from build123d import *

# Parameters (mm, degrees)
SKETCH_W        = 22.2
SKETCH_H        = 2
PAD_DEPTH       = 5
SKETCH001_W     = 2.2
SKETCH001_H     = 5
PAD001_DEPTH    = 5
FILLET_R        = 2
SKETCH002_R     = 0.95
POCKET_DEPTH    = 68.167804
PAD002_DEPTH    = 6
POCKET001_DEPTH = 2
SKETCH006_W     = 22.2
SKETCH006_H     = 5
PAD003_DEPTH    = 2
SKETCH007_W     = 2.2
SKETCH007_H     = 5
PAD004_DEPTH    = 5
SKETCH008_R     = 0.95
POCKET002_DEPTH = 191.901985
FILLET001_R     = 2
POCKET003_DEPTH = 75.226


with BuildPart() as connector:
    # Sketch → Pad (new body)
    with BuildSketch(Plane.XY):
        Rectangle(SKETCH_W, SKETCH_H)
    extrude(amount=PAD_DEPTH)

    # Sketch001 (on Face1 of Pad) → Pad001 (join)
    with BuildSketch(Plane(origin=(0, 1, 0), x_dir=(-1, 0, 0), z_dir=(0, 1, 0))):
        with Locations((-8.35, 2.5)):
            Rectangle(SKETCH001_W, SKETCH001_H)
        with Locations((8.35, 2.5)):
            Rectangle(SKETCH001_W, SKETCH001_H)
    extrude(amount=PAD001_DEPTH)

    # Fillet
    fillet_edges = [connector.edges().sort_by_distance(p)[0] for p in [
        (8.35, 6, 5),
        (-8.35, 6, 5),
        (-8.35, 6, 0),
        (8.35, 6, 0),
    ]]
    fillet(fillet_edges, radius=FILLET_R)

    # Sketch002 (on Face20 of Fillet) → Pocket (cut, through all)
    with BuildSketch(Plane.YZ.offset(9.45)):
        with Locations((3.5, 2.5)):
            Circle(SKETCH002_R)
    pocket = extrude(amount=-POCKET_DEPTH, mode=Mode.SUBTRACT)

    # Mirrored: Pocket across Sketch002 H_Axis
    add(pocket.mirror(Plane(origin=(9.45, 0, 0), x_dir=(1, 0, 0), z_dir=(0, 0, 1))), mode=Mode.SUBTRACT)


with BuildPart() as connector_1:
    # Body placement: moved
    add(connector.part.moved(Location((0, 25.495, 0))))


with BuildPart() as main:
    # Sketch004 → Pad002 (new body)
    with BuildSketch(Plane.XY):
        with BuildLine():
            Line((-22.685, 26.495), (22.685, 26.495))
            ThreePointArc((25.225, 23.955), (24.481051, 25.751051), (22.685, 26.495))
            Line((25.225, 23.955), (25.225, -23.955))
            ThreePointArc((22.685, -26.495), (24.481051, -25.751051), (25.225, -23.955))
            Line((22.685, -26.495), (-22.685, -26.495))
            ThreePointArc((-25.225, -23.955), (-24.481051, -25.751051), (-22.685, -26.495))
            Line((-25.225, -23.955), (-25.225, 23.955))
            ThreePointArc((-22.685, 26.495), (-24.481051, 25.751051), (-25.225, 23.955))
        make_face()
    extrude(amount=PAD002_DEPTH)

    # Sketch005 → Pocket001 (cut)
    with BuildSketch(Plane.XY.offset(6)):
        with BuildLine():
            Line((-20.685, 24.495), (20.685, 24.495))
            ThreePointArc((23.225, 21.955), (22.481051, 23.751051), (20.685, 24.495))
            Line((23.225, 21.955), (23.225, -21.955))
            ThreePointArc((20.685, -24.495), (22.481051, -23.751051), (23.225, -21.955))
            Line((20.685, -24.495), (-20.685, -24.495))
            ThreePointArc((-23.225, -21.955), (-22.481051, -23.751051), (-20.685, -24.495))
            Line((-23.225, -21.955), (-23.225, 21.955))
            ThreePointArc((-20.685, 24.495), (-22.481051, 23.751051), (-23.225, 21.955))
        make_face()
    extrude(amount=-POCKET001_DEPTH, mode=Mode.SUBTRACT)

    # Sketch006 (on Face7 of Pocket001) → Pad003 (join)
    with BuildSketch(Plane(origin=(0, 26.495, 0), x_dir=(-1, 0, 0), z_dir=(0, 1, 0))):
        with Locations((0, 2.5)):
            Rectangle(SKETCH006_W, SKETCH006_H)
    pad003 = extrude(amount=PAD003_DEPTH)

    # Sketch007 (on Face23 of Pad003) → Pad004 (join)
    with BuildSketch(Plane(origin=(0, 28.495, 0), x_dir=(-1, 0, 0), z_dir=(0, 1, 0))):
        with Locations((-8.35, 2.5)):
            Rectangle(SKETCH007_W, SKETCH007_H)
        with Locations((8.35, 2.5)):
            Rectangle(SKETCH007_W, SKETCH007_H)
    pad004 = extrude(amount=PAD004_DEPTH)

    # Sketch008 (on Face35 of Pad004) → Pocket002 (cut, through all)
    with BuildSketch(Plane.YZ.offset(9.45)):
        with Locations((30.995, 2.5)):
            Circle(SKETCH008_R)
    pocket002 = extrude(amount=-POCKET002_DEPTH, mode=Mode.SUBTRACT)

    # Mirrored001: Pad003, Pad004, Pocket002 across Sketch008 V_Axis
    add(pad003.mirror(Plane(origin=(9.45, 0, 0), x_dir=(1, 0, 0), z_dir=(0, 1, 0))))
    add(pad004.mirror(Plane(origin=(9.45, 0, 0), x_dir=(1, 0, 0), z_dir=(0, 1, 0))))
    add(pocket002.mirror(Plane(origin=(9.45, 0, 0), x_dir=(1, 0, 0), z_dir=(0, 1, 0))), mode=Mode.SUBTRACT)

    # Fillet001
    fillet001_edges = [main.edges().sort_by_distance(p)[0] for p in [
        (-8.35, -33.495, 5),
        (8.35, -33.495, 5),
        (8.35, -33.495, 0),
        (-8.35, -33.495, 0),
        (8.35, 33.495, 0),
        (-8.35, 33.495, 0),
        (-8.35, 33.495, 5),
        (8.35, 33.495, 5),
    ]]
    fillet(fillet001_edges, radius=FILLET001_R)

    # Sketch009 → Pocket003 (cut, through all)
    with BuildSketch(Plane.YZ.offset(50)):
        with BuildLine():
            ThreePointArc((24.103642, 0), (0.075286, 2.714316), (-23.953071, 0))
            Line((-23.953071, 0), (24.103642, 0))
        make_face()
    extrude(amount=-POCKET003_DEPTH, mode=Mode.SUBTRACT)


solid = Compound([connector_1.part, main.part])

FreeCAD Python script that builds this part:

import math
import FreeCAD as App
import Part
import Sketcher
from FreeCAD import Vector


def edges_at(feature, points):
    """Names of the edges that pass closest to the given points."""
    edges = feature.Shape.Edges
    near = lambda p: min(range(len(edges)), key=lambda i: edges[i].distToShape(Part.Vertex(*p))[0])
    return sorted({f"Edge{near(p) + 1}" for p in points})

doc = App.newDocument("Part")
body = doc.addObject("PartDesign::Body", "Body")

sketch1 = doc.addObject("Sketcher::SketchObject", "Sketch")
body.addObject(sketch1)
sketch1.AttachmentSupport = (doc.XY_Plane, [""])
sketch1.MapMode = "FlatFace"
sketch1.addGeometry(Part.LineSegment(Vector(-11.1, 1, 0), Vector(-11.1, -1, 0)), False)
sketch1.addGeometry(Part.LineSegment(Vector(-11.1, -1, 0), Vector(11.1, -1, 0)), False)
sketch1.addGeometry(Part.LineSegment(Vector(11.1, -1, 0), Vector(11.1, 1, 0)), False)
sketch1.addGeometry(Part.LineSegment(Vector(11.1, 1, 0), Vector(-11.1, 1, 0)), False)
sketch1.addConstraint(Sketcher.Constraint("Coincident", 0, 2, 1, 1))
sketch1.addConstraint(Sketcher.Constraint("Coincident", 1, 2, 2, 1))
sketch1.addConstraint(Sketcher.Constraint("Coincident", 2, 2, 3, 1))
sketch1.addConstraint(Sketcher.Constraint("Coincident", 3, 2, 0, 1))
sketch1.addConstraint(Sketcher.Constraint("Vertical", 0))
sketch1.addConstraint(Sketcher.Constraint("Horizontal", 1))
sketch1.addConstraint(Sketcher.Constraint("Vertical", 2))
sketch1.addConstraint(Sketcher.Constraint("Horizontal", 3))
sketch1.addConstraint(Sketcher.Constraint("Symmetric", 0, 2, 2, 2, -1, 1))
sketch1.addConstraint(Sketcher.Constraint("DistanceY", 0, 2, 0, 1, 2.0))
sketch1.addConstraint(Sketcher.Constraint("DistanceX", 1, 1, 1, 2, 22.2))
pad1 = doc.addObject("PartDesign::Pad", "Pad")
body.addObject(pad1)
pad1.Profile = sketch1
pad1.Length = 5

sketch2 = doc.addObject("Sketcher::SketchObject", "Sketch001")
body.addObject(sketch2)
sketch2.AttachmentSupport = (doc.XZ_Plane, [""])
sketch2.MapMode = "FlatFace"
sketch2.AttachmentOffset = App.Placement(Vector(0, 0, -1), App.Rotation())
sketch2.addGeometry(Part.LineSegment(Vector(9.4, 5, 0), Vector(9.4, 0, 0)), False)
sketch2.addGeometry(Part.LineSegment(Vector(9.4, 0, 0), Vector(7.2, 0, 0)), False)
sketch2.addGeometry(Part.LineSegment(Vector(7.2, 0, 0), Vector(7.2, 5, 0)), False)
sketch2.addGeometry(Part.LineSegment(Vector(7.2, 5, 0), Vector(9.4, 5, 0)), False)
sketch2.addGeometry(Part.LineSegment(Vector(-7.2, 5, 0), Vector(-7.2, 0, 0)), False)
sketch2.addGeometry(Part.LineSegment(Vector(-7.2, 0, 0), Vector(-9.4, 0, 0)), False)
sketch2.addGeometry(Part.LineSegment(Vector(-9.4, 0, 0), Vector(-9.4, 5, 0)), False)
sketch2.addGeometry(Part.LineSegment(Vector(-9.4, 5, 0), Vector(-7.2, 5, 0)), False)
sketch2.addConstraint(Sketcher.Constraint("Coincident", 0, 2, 1, 1))
sketch2.addConstraint(Sketcher.Constraint("Coincident", 1, 2, 2, 1))
sketch2.addConstraint(Sketcher.Constraint("Coincident", 2, 2, 3, 1))
sketch2.addConstraint(Sketcher.Constraint("Coincident", 3, 2, 0, 1))
sketch2.addConstraint(Sketcher.Constraint("Coincident", 4, 2, 5, 1))
sketch2.addConstraint(Sketcher.Constraint("Coincident", 5, 2, 6, 1))
sketch2.addConstraint(Sketcher.Constraint("Coincident", 6, 2, 7, 1))
sketch2.addConstraint(Sketcher.Constraint("Coincident", 7, 2, 4, 1))
sketch2.addConstraint(Sketcher.Constraint("Vertical", 0))
sketch2.addConstraint(Sketcher.Constraint("Horizontal", 1))
sketch2.addConstraint(Sketcher.Constraint("Vertical", 2))
sketch2.addConstraint(Sketcher.Constraint("Horizontal", 3))
sketch2.addConstraint(Sketcher.Constraint("Vertical", 4))
sketch2.addConstraint(Sketcher.Constraint("Horizontal", 5))
sketch2.addConstraint(Sketcher.Constraint("Vertical", 6))
sketch2.addConstraint(Sketcher.Constraint("Horizontal", 7))
sketch2.addConstraint(Sketcher.Constraint("Symmetric", 1, 2, 4, 2, -1, 1))
sketch2.addConstraint(Sketcher.Constraint("Symmetric", 0, 2, 5, 2, -2))
sketch2.addConstraint(Sketcher.Constraint("Horizontal", 3, 2, 6, 2))
sketch2.addConstraint(Sketcher.Constraint("DistanceY", 0, 2, 0, 1, 5.0))
sketch2.addConstraint(Sketcher.Constraint("DistanceX", 1, 2, 1, 1, 2.2))
sketch2.addConstraint(Sketcher.Constraint("DistanceX", 4, 2, 1, 2, 14.5))
pad2 = doc.addObject("PartDesign::Pad", "Pad001")
body.addObject(pad2)
pad2.Profile = sketch2
pad2.Length = 5
pad2.Reversed = True
doc.recompute()

fillet = doc.addObject("PartDesign::Fillet", "Fillet")
body.addObject(fillet)
fillet.Base = (pad2, edges_at(pad2, [
    (8.35, 6, 5),
    (-8.35, 6, 5),
    (-8.35, 6, 0),
    (8.35, 6, 0),
]))
fillet.Radius = 2

sketch3 = doc.addObject("Sketcher::SketchObject", "Sketch002")
body.addObject(sketch3)
sketch3.AttachmentSupport = (doc.YZ_Plane, [""])
sketch3.MapMode = "FlatFace"
sketch3.AttachmentOffset = App.Placement(Vector(0, 0, 9.45), App.Rotation())
sketch3.addGeometry(Part.Circle(Vector(3.5, 2.5, 0), Vector(0, 0, 1), 0.9), False)
sketch3.addConstraint(Sketcher.Constraint("Diameter", 0, 1.9))
sketch3.addConstraint(Sketcher.Constraint("DistanceX", -1, 1, 0, 3, 3.5))
sketch3.addConstraint(Sketcher.Constraint("DistanceY", -1, 1, 0, 3, 2.5))
pocket1 = doc.addObject("PartDesign::Pocket", "Pocket")
body.addObject(pocket1)
pocket1.Profile = sketch3
pocket1.Type = "ThroughAll"
doc.recompute()

mirrored = doc.addObject("PartDesign::Mirrored", "Mirrored")
body.addObject(mirrored)
mirrored.Originals = [pocket1]
mirrored.MirrorPlane = (doc.XY_Plane, [""])
body.Tip = mirrored
body2 = doc.addObject("PartDesign::Body", "Body001")
doc.recompute()

body.Placement = App.Placement(Vector(0, 25.495, 0), App.Rotation(Vector(0, 0, 1), 0))
boolean = doc.addObject("PartDesign::Boolean", "Boolean")
body2.addObject(boolean)
boolean.Type = "Fuse"
boolean.addObjects([body])
body3 = doc.addObject("PartDesign::Body", "Body002")

sketch4 = doc.addObject("Sketcher::SketchObject", "Sketch003")
body3.addObject(sketch4)
sketch4.AttachmentSupport = (doc.getObject("XY_Plane002"), [""])
sketch4.MapMode = "FlatFace"
sketch4.addGeometry(Part.LineSegment(Vector(22.7, 26.5, 0), Vector(-22.7, 26.5, 0)), False)
sketch4.addGeometry(Part.ArcOfCircle(Part.Circle(Vector(-22.7, 24, 0), Vector(0, 0, 1), 2.5), math.radians(90), math.radians(180)), False)
sketch4.addGeometry(Part.LineSegment(Vector(-25.2, 24, 0), Vector(-25.2, -24, 0)), False)
sketch4.addGeometry(Part.ArcOfCircle(Part.Circle(Vector(-22.7, -24, 0), Vector(0, 0, 1), 2.5), math.radians(-180), math.radians(-90)), False)
sketch4.addGeometry(Part.LineSegment(Vector(-22.7, -26.5, 0), Vector(22.7, -26.5, 0)), False)
sketch4.addGeometry(Part.ArcOfCircle(Part.Circle(Vector(22.7, -24, 0), Vector(0, 0, 1), 2.5), math.radians(-90), math.radians(0)), False)
sketch4.addGeometry(Part.LineSegment(Vector(25.2, -24, 0), Vector(25.2, 24, 0)), False)
sketch4.addGeometry(Part.ArcOfCircle(Part.Circle(Vector(22.7, 24, 0), Vector(0, 0, 1), 2.5), math.radians(0), math.radians(90)), False)
sketch4.addConstraint(Sketcher.Constraint("Tangent", 0, 2, 1, 1))
sketch4.addConstraint(Sketcher.Constraint("Tangent", 1, 2, 2, 1))
sketch4.addConstraint(Sketcher.Constraint("Tangent", 2, 2, 3, 1))
sketch4.addConstraint(Sketcher.Constraint("Tangent", 3, 2, 4, 1))
sketch4.addConstraint(Sketcher.Constraint("Tangent", 4, 2, 5, 1))
sketch4.addConstraint(Sketcher.Constraint("Tangent", 5, 2, 6, 1))
sketch4.addConstraint(Sketcher.Constraint("Tangent", 6, 2, 7, 1))
sketch4.addConstraint(Sketcher.Constraint("Tangent", 7, 2, 0, 1))
sketch4.addConstraint(Sketcher.Constraint("Horizontal", 0))
sketch4.addConstraint(Sketcher.Constraint("Vertical", 2))
sketch4.addConstraint(Sketcher.Constraint("Horizontal", 4))
sketch4.addConstraint(Sketcher.Constraint("Vertical", 6))
sketch4.addConstraint(Sketcher.Constraint("Equal", 1, 3))
sketch4.addConstraint(Sketcher.Constraint("Equal", 3, 5))
sketch4.addConstraint(Sketcher.Constraint("Equal", 5, 7))
sketch4.addConstraint(Sketcher.Constraint("Symmetric", 1, 3, 5, 3, -1, 1))
sketch4.addConstraint(Sketcher.Constraint("Radius", 1, 2.540001))
sketch4.addConstraint(Sketcher.Constraint("DistanceX", 0, 2, 0, 1, 45.37))
sketch4.addConstraint(Sketcher.Constraint("DistanceY", 2, 2, 2, 1, 47.91))
pad3 = doc.addObject("PartDesign::Pad", "Pad002")
body3.addObject(pad3)
pad3.Profile = sketch4
pad3.Length = 6

sketch5 = doc.addObject("Sketcher::SketchObject", "Sketch004")
body3.addObject(sketch5)
sketch5.AttachmentSupport = (doc.getObject("XY_Plane002"), [""])
sketch5.MapMode = "FlatFace"
sketch5.AttachmentOffset = App.Placement(Vector(0, 0, 6), App.Rotation())
sketch5.addGeometry(Part.LineSegment(Vector(20.7, 24.5, 0), Vector(-20.7, 24.5, 0)), False)
sketch5.addGeometry(Part.ArcOfCircle(Part.Circle(Vector(-20.7, 22, 0), Vector(0, 0, 1), 2.5), math.radians(90), math.radians(180)), False)
sketch5.addGeometry(Part.LineSegment(Vector(-23.2, 22, 0), Vector(-23.2, -22, 0)), False)
sketch5.addGeometry(Part.ArcOfCircle(Part.Circle(Vector(-20.7, -22, 0), Vector(0, 0, 1), 2.5), math.radians(-180), math.radians(-90)), False)
sketch5.addGeometry(Part.LineSegment(Vector(-20.7, -24.5, 0), Vector(20.7, -24.5, 0)), False)
sketch5.addGeometry(Part.ArcOfCircle(Part.Circle(Vector(20.7, -22, 0), Vector(0, 0, 1), 2.5), math.radians(-90), math.radians(0)), False)
sketch5.addGeometry(Part.LineSegment(Vector(23.2, -22, 0), Vector(23.2, 22, 0)), False)
sketch5.addGeometry(Part.ArcOfCircle(Part.Circle(Vector(20.7, 22, 0), Vector(0, 0, 1), 2.5), math.radians(0), math.radians(90)), False)
sketch5.addConstraint(Sketcher.Constraint("Tangent", 0, 2, 1, 1))
sketch5.addConstraint(Sketcher.Constraint("Tangent", 1, 2, 2, 1))
sketch5.addConstraint(Sketcher.Constraint("Tangent", 2, 2, 3, 1))
sketch5.addConstraint(Sketcher.Constraint("Tangent", 3, 2, 4, 1))
sketch5.addConstraint(Sketcher.Constraint("Tangent", 4, 2, 5, 1))
sketch5.addConstraint(Sketcher.Constraint("Tangent", 5, 2, 6, 1))
sketch5.addConstraint(Sketcher.Constraint("Tangent", 6, 2, 7, 1))
sketch5.addConstraint(Sketcher.Constraint("Tangent", 7, 2, 0, 1))
sketch5.addConstraint(Sketcher.Constraint("Horizontal", 0))
sketch5.addConstraint(Sketcher.Constraint("Vertical", 2))
sketch5.addConstraint(Sketcher.Constraint("Horizontal", 4))
sketch5.addConstraint(Sketcher.Constraint("Vertical", 6))
sketch5.addConstraint(Sketcher.Constraint("Equal", 1, 3))
sketch5.addConstraint(Sketcher.Constraint("Equal", 3, 5))
sketch5.addConstraint(Sketcher.Constraint("Equal", 5, 7))
sketch5.addConstraint(Sketcher.Constraint("Symmetric", 1, 3, 5, 3, -1, 1))
sketch5.addConstraint(Sketcher.Constraint("Radius", 1, 2.540001))
sketch5.addConstraint(Sketcher.Constraint("DistanceX", 0, 2, 0, 1, 41.37))
sketch5.addConstraint(Sketcher.Constraint("DistanceY", 2, 2, 2, 1, 43.91))
pocket2 = doc.addObject("PartDesign::Pocket", "Pocket001")
body3.addObject(pocket2)
pocket2.Profile = sketch5
pocket2.Length = 2

sketch6 = doc.addObject("Sketcher::SketchObject", "Sketch005")
body3.addObject(sketch6)
sketch6.AttachmentSupport = (doc.getObject("XZ_Plane002"), [""])
sketch6.MapMode = "FlatFace"
sketch6.AttachmentOffset = App.Placement(Vector(0, 0, -26.495), App.Rotation())
sketch6.addGeometry(Part.LineSegment(Vector(11, 5, 0), Vector(11, 0, 0)), False)
sketch6.addGeometry(Part.LineSegment(Vector(11, 0, 0), Vector(-11, 0, 0)), False)
sketch6.addGeometry(Part.LineSegment(Vector(-11, 0, 0), Vector(-11, 5, 0)), False)
sketch6.addGeometry(Part.LineSegment(Vector(-11, 5, 0), Vector(11, 5, 0)), False)
sketch6.addConstraint(Sketcher.Constraint("Coincident", 0, 2, 1, 1))
sketch6.addConstraint(Sketcher.Constraint("Coincident", 1, 2, 2, 1))
sketch6.addConstraint(Sketcher.Constraint("Coincident", 2, 2, 3, 1))
sketch6.addConstraint(Sketcher.Constraint("Coincident", 3, 2, 0, 1))
sketch6.addConstraint(Sketcher.Constraint("Vertical", 0))
sketch6.addConstraint(Sketcher.Constraint("Horizontal", 1))
sketch6.addConstraint(Sketcher.Constraint("Vertical", 2))
sketch6.addConstraint(Sketcher.Constraint("Horizontal", 3))
sketch6.addConstraint(Sketcher.Constraint("Symmetric", 0, 2, 1, 2, -1, 1))
sketch6.addConstraint(Sketcher.Constraint("DistanceY", 0, 2, 0, 1, 5.0))
sketch6.addConstraint(Sketcher.Constraint("DistanceX", 1, 2, 1, 1, 22.2))
pad4 = doc.addObject("PartDesign::Pad", "Pad003")
body3.addObject(pad4)
pad4.Profile = sketch6
pad4.Length = 2
pad4.Reversed = True

sketch7 = doc.addObject("Sketcher::SketchObject", "Sketch006")
body3.addObject(sketch7)
sketch7.AttachmentSupport = (doc.getObject("XZ_Plane002"), [""])
sketch7.MapMode = "FlatFace"
sketch7.AttachmentOffset = App.Placement(Vector(0, 0, -28.495), App.Rotation())
sketch7.addGeometry(Part.LineSegment(Vector(9.4, 5, 0), Vector(9.4, 0, 0)), False)
sketch7.addGeometry(Part.LineSegment(Vector(9.4, 0, 0), Vector(7.2, 0, 0)), False)
sketch7.addGeometry(Part.LineSegment(Vector(7.2, 0, 0), Vector(7.2, 5, 0)), False)
sketch7.addGeometry(Part.LineSegment(Vector(7.2, 5, 0), Vector(9.4, 5, 0)), False)
sketch7.addGeometry(Part.LineSegment(Vector(-7.2, 5, 0), Vector(-7.2, 0, 0)), False)
sketch7.addGeometry(Part.LineSegment(Vector(-7.2, 0, 0), Vector(-9.4, 0, 0)), False)
sketch7.addGeometry(Part.LineSegment(Vector(-9.4, 0, 0), Vector(-9.4, 5, 0)), False)
sketch7.addGeometry(Part.LineSegment(Vector(-9.4, 5, 0), Vector(-7.2, 5, 0)), False)
sketch7.addConstraint(Sketcher.Constraint("Coincident", 0, 2, 1, 1))
sketch7.addConstraint(Sketcher.Constraint("Coincident", 1, 2, 2, 1))
sketch7.addConstraint(Sketcher.Constraint("Coincident", 2, 2, 3, 1))
sketch7.addConstraint(Sketcher.Constraint("Coincident", 3, 2, 0, 1))
sketch7.addConstraint(Sketcher.Constraint("Coincident", 4, 2, 5, 1))
sketch7.addConstraint(Sketcher.Constraint("Coincident", 5, 2, 6, 1))
sketch7.addConstraint(Sketcher.Constraint("Coincident", 6, 2, 7, 1))
sketch7.addConstraint(Sketcher.Constraint("Coincident", 7, 2, 4, 1))
sketch7.addConstraint(Sketcher.Constraint("Vertical", 0))
sketch7.addConstraint(Sketcher.Constraint("Horizontal", 1))
sketch7.addConstraint(Sketcher.Constraint("Vertical", 2))
sketch7.addConstraint(Sketcher.Constraint("Horizontal", 3))
sketch7.addConstraint(Sketcher.Constraint("Vertical", 4))
sketch7.addConstraint(Sketcher.Constraint("Horizontal", 5))
sketch7.addConstraint(Sketcher.Constraint("Vertical", 6))
sketch7.addConstraint(Sketcher.Constraint("Horizontal", 7))
sketch7.addConstraint(Sketcher.Constraint("Symmetric", 1, 2, 4, 2, -1, 1))
sketch7.addConstraint(Sketcher.Constraint("Symmetric", 0, 2, 5, 2, -2))
sketch7.addConstraint(Sketcher.Constraint("Horizontal", 3, 2, 6, 2))
sketch7.addConstraint(Sketcher.Constraint("DistanceY", 0, 2, 0, 1, 5.0))
sketch7.addConstraint(Sketcher.Constraint("DistanceX", 1, 2, 1, 1, 2.2))
sketch7.addConstraint(Sketcher.Constraint("DistanceX", 4, 2, 1, 2, 14.5))
pad5 = doc.addObject("PartDesign::Pad", "Pad004")
body3.addObject(pad5)
pad5.Profile = sketch7
pad5.Length = 5
pad5.Reversed = True

sketch8 = doc.addObject("Sketcher::SketchObject", "Sketch007")
body3.addObject(sketch8)
sketch8.AttachmentSupport = (doc.getObject("YZ_Plane002"), [""])
sketch8.MapMode = "FlatFace"
sketch8.AttachmentOffset = App.Placement(Vector(0, 0, 9.45), App.Rotation())
sketch8.addGeometry(Part.Circle(Vector(31, 2.5, 0), Vector(0, 0, 1), 0.9), False)
sketch8.addConstraint(Sketcher.Constraint("Diameter", 0, 1.9))
sketch8.addConstraint(Sketcher.Constraint("DistanceY", -1, 1, 0, 3, 2.5))
sketch8.addConstraint(Sketcher.Constraint("DistanceX", -1, 1, 0, 3, 30.995))
pocket3 = doc.addObject("PartDesign::Pocket", "Pocket002")
body3.addObject(pocket3)
pocket3.Profile = sketch8
pocket3.Type = "ThroughAll"
doc.recompute()

mirrored2 = doc.addObject("PartDesign::Mirrored", "Mirrored001")
body3.addObject(mirrored2)
mirrored2.Originals = [pad4, pad5, pocket3]
mirrored2.MirrorPlane = (doc.getObject("XZ_Plane002"), [""])
body3.Tip = mirrored2
doc.recompute()

fillet2 = doc.addObject("PartDesign::Fillet", "Fillet001")
body3.addObject(fillet2)
fillet2.Base = (mirrored2, edges_at(mirrored2, [
    (-8.35, -33.495, 5),
    (8.35, -33.495, 5),
    (8.35, -33.495, 0),
    (-8.35, -33.495, 0),
    (8.35, 33.495, 0),
    (-8.35, 33.495, 0),
    (-8.35, 33.495, 5),
    (8.35, 33.495, 5),
]))
fillet2.Radius = 2

sketch9 = doc.addObject("Sketcher::SketchObject", "Sketch008")
body3.addObject(sketch9)
sketch9.AttachmentSupport = (doc.getObject("YZ_Plane002"), [""])
sketch9.MapMode = "FlatFace"
sketch9.AttachmentOffset = App.Placement(Vector(0, 0, 50), App.Rotation())
sketch9.addGeometry(Part.ArcOfCircle(Part.Circle(Vector(0, -105, 0), Vector(0, 0, 1), 108), math.radians(77), math.radians(103)), False)
sketch9.addGeometry(Part.LineSegment(Vector(-24, 0, 0), Vector(24, 0, 0)), False)
sketch9.addConstraint(Sketcher.Constraint("Coincident", 0, 1, 1, 2))
sketch9.addConstraint(Sketcher.Constraint("Coincident", 1, 1, 0, 2))
sketch9.addConstraint(Sketcher.Constraint("Horizontal", 1))
sketch9.addConstraint(Sketcher.Constraint("PointOnObject", 0, 1, -1))
sketch9.addConstraint(Sketcher.Constraint("Radius", 0, 107.712114))
sketch9.addConstraint(Sketcher.Constraint("DistanceX", 1, 1, 1, 2, 48.056713))
sketch9.addConstraint(Sketcher.Constraint("DistanceX", -1, 1, 0, 1, 24.103642))
pocket4 = doc.addObject("PartDesign::Pocket", "Pocket003")
body3.addObject(pocket4)
pocket4.Profile = sketch9
pocket4.Type = "ThroughAll"

doc.recompute()
